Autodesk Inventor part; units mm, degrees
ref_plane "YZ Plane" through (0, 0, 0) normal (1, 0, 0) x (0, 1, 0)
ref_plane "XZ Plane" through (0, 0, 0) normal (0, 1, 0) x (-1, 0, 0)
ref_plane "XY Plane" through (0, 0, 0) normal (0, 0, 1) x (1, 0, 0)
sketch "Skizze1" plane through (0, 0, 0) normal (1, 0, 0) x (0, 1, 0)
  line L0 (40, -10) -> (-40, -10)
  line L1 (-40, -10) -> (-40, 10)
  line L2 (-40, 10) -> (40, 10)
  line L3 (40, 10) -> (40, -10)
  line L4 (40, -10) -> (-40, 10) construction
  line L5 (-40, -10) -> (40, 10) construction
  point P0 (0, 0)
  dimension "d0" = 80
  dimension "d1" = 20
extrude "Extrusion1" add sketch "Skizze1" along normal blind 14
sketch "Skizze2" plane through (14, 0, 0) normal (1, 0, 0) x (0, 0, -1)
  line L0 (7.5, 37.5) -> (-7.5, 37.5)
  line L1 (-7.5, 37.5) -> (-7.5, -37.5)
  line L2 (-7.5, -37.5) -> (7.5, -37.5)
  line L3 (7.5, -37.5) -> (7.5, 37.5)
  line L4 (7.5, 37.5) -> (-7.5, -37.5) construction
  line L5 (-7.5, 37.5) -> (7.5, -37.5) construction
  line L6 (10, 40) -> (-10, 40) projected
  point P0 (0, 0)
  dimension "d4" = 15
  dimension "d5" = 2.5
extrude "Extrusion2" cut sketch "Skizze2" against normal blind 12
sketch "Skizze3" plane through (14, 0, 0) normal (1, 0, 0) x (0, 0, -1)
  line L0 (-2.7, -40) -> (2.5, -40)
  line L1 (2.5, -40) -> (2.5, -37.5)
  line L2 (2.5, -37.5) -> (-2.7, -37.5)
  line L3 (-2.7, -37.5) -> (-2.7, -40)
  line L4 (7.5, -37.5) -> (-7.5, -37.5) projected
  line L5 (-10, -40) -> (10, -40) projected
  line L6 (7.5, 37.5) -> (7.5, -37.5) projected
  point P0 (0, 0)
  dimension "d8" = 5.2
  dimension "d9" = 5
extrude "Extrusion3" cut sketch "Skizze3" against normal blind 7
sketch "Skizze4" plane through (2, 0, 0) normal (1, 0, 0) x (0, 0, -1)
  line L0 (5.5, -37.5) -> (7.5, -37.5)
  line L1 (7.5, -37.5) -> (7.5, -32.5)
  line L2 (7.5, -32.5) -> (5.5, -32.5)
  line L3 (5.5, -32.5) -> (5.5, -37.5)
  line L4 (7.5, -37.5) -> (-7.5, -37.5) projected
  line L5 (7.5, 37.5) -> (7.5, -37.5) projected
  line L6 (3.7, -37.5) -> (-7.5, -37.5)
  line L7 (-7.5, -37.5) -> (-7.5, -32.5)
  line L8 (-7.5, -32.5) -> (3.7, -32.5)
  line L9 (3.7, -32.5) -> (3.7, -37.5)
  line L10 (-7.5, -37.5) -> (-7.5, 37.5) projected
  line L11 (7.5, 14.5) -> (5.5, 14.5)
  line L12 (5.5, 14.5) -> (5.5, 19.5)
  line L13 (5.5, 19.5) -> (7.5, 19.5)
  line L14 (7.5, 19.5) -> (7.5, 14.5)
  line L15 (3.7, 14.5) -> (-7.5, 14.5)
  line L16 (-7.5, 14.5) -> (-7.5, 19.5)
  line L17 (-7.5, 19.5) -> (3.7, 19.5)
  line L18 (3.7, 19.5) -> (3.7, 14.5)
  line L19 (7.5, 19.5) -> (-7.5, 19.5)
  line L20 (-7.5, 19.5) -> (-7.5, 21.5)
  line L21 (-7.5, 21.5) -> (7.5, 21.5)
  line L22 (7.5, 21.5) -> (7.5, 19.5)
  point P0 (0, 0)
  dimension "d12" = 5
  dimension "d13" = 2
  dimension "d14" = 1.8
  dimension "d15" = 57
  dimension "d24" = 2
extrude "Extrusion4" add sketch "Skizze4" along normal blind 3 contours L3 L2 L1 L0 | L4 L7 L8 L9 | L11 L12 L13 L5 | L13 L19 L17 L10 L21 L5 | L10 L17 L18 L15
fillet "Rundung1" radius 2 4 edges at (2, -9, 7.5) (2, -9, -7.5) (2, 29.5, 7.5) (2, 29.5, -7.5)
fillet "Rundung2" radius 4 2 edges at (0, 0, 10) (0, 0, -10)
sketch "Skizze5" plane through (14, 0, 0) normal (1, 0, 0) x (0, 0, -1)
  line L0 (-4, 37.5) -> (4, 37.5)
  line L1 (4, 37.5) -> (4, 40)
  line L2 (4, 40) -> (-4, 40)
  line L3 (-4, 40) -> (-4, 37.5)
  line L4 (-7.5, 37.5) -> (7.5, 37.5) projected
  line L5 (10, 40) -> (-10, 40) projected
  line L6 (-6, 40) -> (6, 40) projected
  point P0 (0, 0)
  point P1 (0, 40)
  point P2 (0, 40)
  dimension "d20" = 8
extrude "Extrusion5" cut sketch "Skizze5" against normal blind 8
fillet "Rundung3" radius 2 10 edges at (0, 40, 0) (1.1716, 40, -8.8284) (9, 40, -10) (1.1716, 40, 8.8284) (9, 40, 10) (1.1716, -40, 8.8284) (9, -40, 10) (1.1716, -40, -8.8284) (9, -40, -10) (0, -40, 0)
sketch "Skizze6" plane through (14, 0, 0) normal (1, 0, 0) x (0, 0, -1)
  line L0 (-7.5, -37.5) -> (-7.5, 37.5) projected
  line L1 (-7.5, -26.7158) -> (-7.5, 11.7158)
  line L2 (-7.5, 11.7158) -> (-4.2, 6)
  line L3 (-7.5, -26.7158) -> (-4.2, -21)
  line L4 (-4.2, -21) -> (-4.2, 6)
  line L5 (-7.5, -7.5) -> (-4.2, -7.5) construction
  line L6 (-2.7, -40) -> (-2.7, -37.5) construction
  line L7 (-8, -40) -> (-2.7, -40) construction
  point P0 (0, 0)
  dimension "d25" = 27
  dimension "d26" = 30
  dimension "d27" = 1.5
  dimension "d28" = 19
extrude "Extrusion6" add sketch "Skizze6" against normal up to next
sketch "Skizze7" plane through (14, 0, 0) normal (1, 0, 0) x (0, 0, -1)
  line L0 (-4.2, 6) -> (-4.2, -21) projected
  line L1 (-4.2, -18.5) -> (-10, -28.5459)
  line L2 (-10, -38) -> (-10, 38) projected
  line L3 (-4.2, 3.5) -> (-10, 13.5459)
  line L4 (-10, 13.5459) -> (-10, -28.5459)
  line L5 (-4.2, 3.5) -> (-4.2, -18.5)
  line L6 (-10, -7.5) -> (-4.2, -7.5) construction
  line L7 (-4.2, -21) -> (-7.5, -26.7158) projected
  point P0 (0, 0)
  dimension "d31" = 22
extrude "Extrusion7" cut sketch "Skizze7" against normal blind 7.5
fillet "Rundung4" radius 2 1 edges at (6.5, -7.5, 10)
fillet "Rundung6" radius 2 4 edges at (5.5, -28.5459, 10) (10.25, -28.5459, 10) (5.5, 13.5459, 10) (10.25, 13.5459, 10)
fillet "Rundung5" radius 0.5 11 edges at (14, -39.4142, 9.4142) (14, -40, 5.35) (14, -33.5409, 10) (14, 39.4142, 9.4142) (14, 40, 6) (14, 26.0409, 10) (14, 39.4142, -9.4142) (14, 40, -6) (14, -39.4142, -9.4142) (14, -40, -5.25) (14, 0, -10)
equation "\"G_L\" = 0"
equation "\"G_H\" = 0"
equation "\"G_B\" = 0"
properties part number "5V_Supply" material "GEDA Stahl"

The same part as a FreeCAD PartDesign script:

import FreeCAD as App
import Part
import Sketcher
Q = App.Units.Quantity


def edges_at(feature, points):
    """Names of the edges that pass closest to the given points."""
    edges = feature.Shape.Edges
    near = lambda p: min(range(len(edges)), key=lambda i: edges[i].distToShape(Part.Vertex(*p))[0])
    return sorted({f"Edge{near(p) + 1}" for p in points})


def add_polygon(sketch, points):
    """Adds a closed chain of lines whose ends are joined by coincident constraints."""
    first, n = sketch.GeometryCount, len(points)
    for a, b in zip(points, points[1:] + points[:1]):
        sketch.addGeometry(Part.LineSegment(App.Vector(*a, 0), App.Vector(*b, 0)), False)
    for i in range(n):
        sketch.addConstraint(Sketcher.Constraint("Coincident", first + i, 2, first + (i + 1) % n, 1))

doc = App.newDocument("Part")
body = doc.addObject("PartDesign::Body", "Body")

# Sketch on YZ plane
sketch1 = body.newObject("Sketcher::SketchObject", "Sketch")
sketch1.AttachmentSupport = (doc.getObject("YZ_Plane"), [""])
sketch1.MapMode = "FlatFace"
add_polygon(sketch1, [(-40, -10), (40, -10), (40, 10), (-40, 10)])  # lines 0-3
sketch1.addConstraint(Sketcher.Constraint("Horizontal", 0))
sketch1.addConstraint(Sketcher.Constraint("Vertical", 1))
sketch1.addConstraint(Sketcher.Constraint("Horizontal", 2))
sketch1.addConstraint(Sketcher.Constraint("Vertical", 3))
sketch1.addConstraint(Sketcher.Constraint("Symmetric", 0, 2, 2, 2, -1, 1))
sketch1.addConstraint(Sketcher.Constraint("DistanceX", 0, 1, 0, 2, Q("80 mm")))
sketch1.addConstraint(Sketcher.Constraint("DistanceY", 1, 1, 1, 2, Q("20 mm")))
pad1 = body.newObject("PartDesign::Pad", "Pad")
pad1.Profile = sketch1
pad1.Length = 14

# Sketch on YZ plane
sketch2 = body.newObject("Sketcher::SketchObject", "Sketch001")
sketch2.AttachmentSupport = (doc.getObject("YZ_Plane"), [""])
sketch2.MapMode = "FlatFace"
sketch2.AttachmentOffset = App.Placement(App.Vector(0, 0, 14), App.Rotation())
add_polygon(sketch2, [(-37.5, -7.5), (37.5, -7.5), (37.5, 7.5), (-37.5, 7.5)])  # lines 0-3
sketch2.addConstraint(Sketcher.Constraint("Horizontal", 0))
sketch2.addConstraint(Sketcher.Constraint("Vertical", 1))
sketch2.addConstraint(Sketcher.Constraint("Horizontal", 2))
sketch2.addConstraint(Sketcher.Constraint("Vertical", 3))
sketch2.addConstraint(Sketcher.Constraint("Symmetric", 0, 2, 2, 2, -1, 1))
sketch2.addConstraint(Sketcher.Constraint("DistanceY", 1, 1, 1, 2, Q("15 mm")))
sketch2.addConstraint(Sketcher.Constraint("DistanceX", 0, 1, 0, 2, Q("75 mm")))
pocket1 = body.newObject("PartDesign::Pocket", "Pocket")
pocket1.Profile = sketch2
pocket1.Length = 12

# Sketch on YZ plane
sketch3 = body.newObject("Sketcher::SketchObject", "Sketch002")
sketch3.AttachmentSupport = (doc.getObject("YZ_Plane"), [""])
sketch3.MapMode = "FlatFace"
sketch3.AttachmentOffset = App.Placement(App.Vector(0, 0, 14), App.Rotation())
add_polygon(sketch3, [(-37.5, 2.7), (-40, 2.7), (-40, -2.5), (-37.5, -2.5)])  # lines 0-3
sketch3.addConstraint(Sketcher.Constraint("Horizontal", 0))
sketch3.addConstraint(Sketcher.Constraint("Vertical", 1))
sketch3.addConstraint(Sketcher.Constraint("Horizontal", 2))
sketch3.addConstraint(Sketcher.Constraint("Vertical", 3))
sketch3.addConstraint(Sketcher.Constraint("DistanceY", 1, 2, 1, 1, Q("5.2 mm")))
sketch3.addConstraint(Sketcher.Constraint("DistanceX", 0, 2, 0, 1, Q("2.5 mm")))
sketch3.addConstraint(Sketcher.Constraint("DistanceX", 0, 2, -1, 1, Q("40 mm")))
sketch3.addConstraint(Sketcher.Constraint("DistanceY", -1, 1, 0, 2, Q("2.7 mm")))
pocket2 = body.newObject("PartDesign::Pocket", "Pocket001")
pocket2.Profile = sketch3
pocket2.Length = 7

# Sketch on YZ plane
sketch4 = body.newObject("Sketcher::SketchObject", "Sketch003")
sketch4.AttachmentSupport = (doc.getObject("YZ_Plane"), [""])
sketch4.MapMode = "FlatFace"
sketch4.AttachmentOffset = App.Placement(App.Vector(0, 0, 2), App.Rotation())
add_polygon(sketch4, [(-32.5, -5.5), (-37.5, -5.5), (-37.5, -7.5), (-32.5, -7.5)])  # lines 0-3
add_polygon(sketch4, [(-37.5, 7.5), (-37.5, -3.7), (-32.5, -3.7), (-32.5, 7.5)])  # lines 4-7
add_polygon(sketch4, [(14.5, -5.5), (14.5, -7.5), (21.5, -7.5), (21.5, 7.5), (14.5, 7.5), (14.5, -3.7), (19.5, -3.7), (19.5, -5.5)])  # lines 8-15
sketch4.addConstraint(Sketcher.Constraint("Horizontal", 0))
sketch4.addConstraint(Sketcher.Constraint("Vertical", 1))
sketch4.addConstraint(Sketcher.Constraint("Horizontal", 2))
sketch4.addConstraint(Sketcher.Constraint("Vertical", 3))
sketch4.addConstraint(Sketcher.Constraint("Vertical", 4))
sketch4.addConstraint(Sketcher.Constraint("Horizontal", 5))
sketch4.addConstraint(Sketcher.Constraint("Vertical", 6))
sketch4.addConstraint(Sketcher.Constraint("Horizontal", 7))
sketch4.addConstraint(Sketcher.Constraint("Vertical", 8))
sketch4.addConstraint(Sketcher.Constraint("Horizontal", 9))
sketch4.addConstraint(Sketcher.Constraint("Vertical", 10))
sketch4.addConstraint(Sketcher.Constraint("Horizontal", 11))
sketch4.addConstraint(Sketcher.Constraint("Vertical", 12))
sketch4.addConstraint(Sketcher.Constraint("Horizontal", 13))
sketch4.addConstraint(Sketcher.Constraint("Vertical", 14))
sketch4.addConstraint(Sketcher.Constraint("Horizontal", 15))
sketch4.addConstraint(Sketcher.Constraint("Symmetric", 2, 2, 6, 2, -1))
sketch4.addConstraint(Sketcher.Constraint("Symmetric", 8, 2, 11, 2, -1))
sketch4.addConstraint(Sketcher.Constraint("Horizontal", 2, 2, 8, 2))
sketch4.addConstraint(Sketcher.Constraint("Horizontal", 5, 2, 12, 2))
sketch4.addConstraint(Sketcher.Constraint("Horizontal", 3, 2, 14, 2))
sketch4.addConstraint(Sketcher.Constraint("Vertical", 1, 2, 4, 2))
sketch4.addConstraint(Sketcher.Constraint("Equal", 7, 13))
sketch4.addConstraint(Sketcher.Constraint("DistanceX", 0, 2, 0, 1, Q("5 mm")))
sketch4.addConstraint(Sketcher.Constraint("DistanceY", 1, 2, 1, 1, Q("2 mm")))
sketch4.addConstraint(Sketcher.Constraint("DistanceY", 14, 2, 14, 1, Q("1.8 mm")))
sketch4.addConstraint(Sketcher.Constraint("DistanceX", 13, 2, 9, 2, Q("2 mm")))
sketch4.addConstraint(Sketcher.Constraint("DistanceY", 10, 1, 10, 2, Q("15 mm")))
sketch4.addConstraint(Sketcher.Constraint("DistanceX", 2, 2, 8, 2, Q("47 mm")))
sketch4.addConstraint(Sketcher.Constraint("DistanceX", 0, 2, -1, 1, Q("37.5 mm")))
pad2 = body.newObject("PartDesign::Pad", "Pad001")
pad2.Profile = sketch4
pad2.Length = 3
doc.recompute()

fillet = body.newObject("PartDesign::Fillet", "Fillet")
fillet.Base = (pad2, edges_at(pad2, [
    (2, -9, 7.5),
    (2, -9, -7.5),
    (2, 29.5, 7.5),
    (2, 29.5, -7.5),
]))
fillet.Radius = 2
doc.recompute()

fillet2 = body.newObject("PartDesign::Fillet", "Fillet001")
fillet2.Base = (fillet, edges_at(fillet, [(0, 0, 10), (0, 0, -10)]))
fillet2.Radius = 4

# Sketch on YZ plane
sketch5 = body.newObject("Sketcher::SketchObject", "Sketch004")
sketch5.AttachmentSupport = (doc.getObject("YZ_Plane"), [""])
sketch5.MapMode = "FlatFace"
sketch5.AttachmentOffset = App.Placement(App.Vector(0, 0, 14), App.Rotation())
add_polygon(sketch5, [(40, 4), (37.5, 4), (37.5, -4), (40, -4)])  # lines 0-3
sketch5.addConstraint(Sketcher.Constraint("Horizontal", 0))
sketch5.addConstraint(Sketcher.Constraint("Vertical", 1))
sketch5.addConstraint(Sketcher.Constraint("Horizontal", 2))
sketch5.addConstraint(Sketcher.Constraint("Vertical", 3))
sketch5.addConstraint(Sketcher.Constraint("DistanceY", 1, 2, 1, 1, Q("8 mm")))
sketch5.addConstraint(Sketcher.Constraint("DistanceX", 0, 2, 0, 1, Q("2.5 mm")))
sketch5.addConstraint(Sketcher.Constraint("DistanceY", -1, 1, 0, 2, Q("4 mm")))
sketch5.addConstraint(Sketcher.Constraint("DistanceX", -1, 1, 2, 2, Q("40 mm")))
pocket3 = body.newObject("PartDesign::Pocket", "Pocket002")
pocket3.Profile = sketch5
pocket3.Length = 8
doc.recompute()

fillet3 = body.newObject("PartDesign::Fillet", "Fillet002")
fillet3.Base = (pocket3, edges_at(pocket3, [
    (0, 40, 0),
    (1.172, 40, -8.828),
    (9, 40, -10),
    (1.172, 40, 8.828),
    (9, 40, 10),
    (1.172, -40, 8.828),
    (9, -40, 10),
    (1.172, -40, -8.828),
    (9, -40, -10),
    (0, -40, 0),
]))
fillet3.Radius = 2

# Sketch on YZ plane
sketch6 = body.newObject("Sketcher::SketchObject", "Sketch005")
sketch6.AttachmentSupport = (doc.getObject("YZ_Plane"), [""])
sketch6.MapMode = "FlatFace"
sketch6.AttachmentOffset = App.Placement(App.Vector(0, 0, 14), App.Rotation())
add_polygon(sketch6, [(11.7158, 7.5), (-26.7158, 7.5), (-21, 4.2), (6, 4.2)])  # lines 0-3
sketch6.addConstraint(Sketcher.Constraint("Horizontal", 0))
sketch6.addConstraint(Sketcher.Constraint("Horizontal", 2))
sketch6.addConstraint(Sketcher.Constraint("Equal", 1, 3))
sketch6.addConstraint(Sketcher.Constraint("DistanceX", 2, 1, 2, 2, Q("27 mm")))
sketch6.addConstraint(Sketcher.Constraint("Angle", 1, Q("-29.9999 deg")))
sketch6.addConstraint(Sketcher.Constraint("DistanceX", 1, 2, -1, 1, Q("21 mm")))
sketch6.addConstraint(Sketcher.Constraint("Distance", 1, Q("6.6 mm")))
sketch6.addConstraint(Sketcher.Constraint("DistanceY", -1, 1, 0, 2, Q("7.5 mm")))
pad3 = body.newObject("PartDesign::Pad", "Pad002")
pad3.Profile = sketch6
pad3.Type = "UpToFirst"
pad3.Reversed = True

# Sketch on YZ plane
sketch7 = body.newObject("Sketcher::SketchObject", "Sketch006")
sketch7.AttachmentSupport = (doc.getObject("YZ_Plane"), [""])
sketch7.MapMode = "FlatFace"
sketch7.AttachmentOffset = App.Placement(App.Vector(0, 0, 14), App.Rotation())
add_polygon(sketch7, [(-18.5, 4.2), (3.5, 4.2), (13.5459, 10), (-28.5459, 10)])  # lines 0-3
sketch7.addConstraint(Sketcher.Constraint("Horizontal", 0))
sketch7.addConstraint(Sketcher.Constraint("Horizontal", 2))
sketch7.addConstraint(Sketcher.Constraint("Equal", 1, 3))
sketch7.addConstraint(Sketcher.Constraint("DistanceX", 0, 1, 0, 2, Q("22 mm")))
sketch7.addConstraint(Sketcher.Constraint("Angle", 1, Q("30 deg")))
sketch7.addConstraint(Sketcher.Constraint("DistanceY", -1, 1, 1, 2, Q("10 mm")))
sketch7.addConstraint(Sketcher.Constraint("Distance", 1, Q("11.6 mm")))
sketch7.addConstraint(Sketcher.Constraint("DistanceX", -1, 1, 0, 2, Q("3.5 mm")))
pocket4 = body.newObject("PartDesign::Pocket", "Pocket003")
pocket4.Profile = sketch7
pocket4.Length = 7.5
doc.recompute()

fillet4 = body.newObject("PartDesign::Fillet", "Fillet003")
fillet4.Base = (pocket4, edges_at(pocket4, [(6.5, -7.5, 10)]))
fillet4.Radius = 2
doc.recompute()

fillet5 = body.newObject("PartDesign::Fillet", "Fillet004")
fillet5.Base = (fillet4, edges_at(fillet4, [
    (5.5, -28.546, 10),
    (10.25, -28.546, 10),
    (5.5, 13.546, 10),
    (10.25, 13.546, 10),
]))
fillet5.Radius = 2
doc.recompute()

fillet6 = body.newObject("PartDesign::Fillet", "Fillet005")
fillet6.Base = (fillet5, edges_at(fillet5, [
    (14, -39.414, 9.414),
    (14, -40, 5.35),
    (14, -33.541, 10),
    (14, 39.414, 9.414),
    (14, 40, 6),
    (14, 26.041, 10),
    (14, 39.414, -9.414),
    (14, 40, -6),
    (14, -39.414, -9.414),
    (14, -40, -5.25),
    (14, 0, -10),
]))
fillet6.Radius = 0.5

doc.recompute()
